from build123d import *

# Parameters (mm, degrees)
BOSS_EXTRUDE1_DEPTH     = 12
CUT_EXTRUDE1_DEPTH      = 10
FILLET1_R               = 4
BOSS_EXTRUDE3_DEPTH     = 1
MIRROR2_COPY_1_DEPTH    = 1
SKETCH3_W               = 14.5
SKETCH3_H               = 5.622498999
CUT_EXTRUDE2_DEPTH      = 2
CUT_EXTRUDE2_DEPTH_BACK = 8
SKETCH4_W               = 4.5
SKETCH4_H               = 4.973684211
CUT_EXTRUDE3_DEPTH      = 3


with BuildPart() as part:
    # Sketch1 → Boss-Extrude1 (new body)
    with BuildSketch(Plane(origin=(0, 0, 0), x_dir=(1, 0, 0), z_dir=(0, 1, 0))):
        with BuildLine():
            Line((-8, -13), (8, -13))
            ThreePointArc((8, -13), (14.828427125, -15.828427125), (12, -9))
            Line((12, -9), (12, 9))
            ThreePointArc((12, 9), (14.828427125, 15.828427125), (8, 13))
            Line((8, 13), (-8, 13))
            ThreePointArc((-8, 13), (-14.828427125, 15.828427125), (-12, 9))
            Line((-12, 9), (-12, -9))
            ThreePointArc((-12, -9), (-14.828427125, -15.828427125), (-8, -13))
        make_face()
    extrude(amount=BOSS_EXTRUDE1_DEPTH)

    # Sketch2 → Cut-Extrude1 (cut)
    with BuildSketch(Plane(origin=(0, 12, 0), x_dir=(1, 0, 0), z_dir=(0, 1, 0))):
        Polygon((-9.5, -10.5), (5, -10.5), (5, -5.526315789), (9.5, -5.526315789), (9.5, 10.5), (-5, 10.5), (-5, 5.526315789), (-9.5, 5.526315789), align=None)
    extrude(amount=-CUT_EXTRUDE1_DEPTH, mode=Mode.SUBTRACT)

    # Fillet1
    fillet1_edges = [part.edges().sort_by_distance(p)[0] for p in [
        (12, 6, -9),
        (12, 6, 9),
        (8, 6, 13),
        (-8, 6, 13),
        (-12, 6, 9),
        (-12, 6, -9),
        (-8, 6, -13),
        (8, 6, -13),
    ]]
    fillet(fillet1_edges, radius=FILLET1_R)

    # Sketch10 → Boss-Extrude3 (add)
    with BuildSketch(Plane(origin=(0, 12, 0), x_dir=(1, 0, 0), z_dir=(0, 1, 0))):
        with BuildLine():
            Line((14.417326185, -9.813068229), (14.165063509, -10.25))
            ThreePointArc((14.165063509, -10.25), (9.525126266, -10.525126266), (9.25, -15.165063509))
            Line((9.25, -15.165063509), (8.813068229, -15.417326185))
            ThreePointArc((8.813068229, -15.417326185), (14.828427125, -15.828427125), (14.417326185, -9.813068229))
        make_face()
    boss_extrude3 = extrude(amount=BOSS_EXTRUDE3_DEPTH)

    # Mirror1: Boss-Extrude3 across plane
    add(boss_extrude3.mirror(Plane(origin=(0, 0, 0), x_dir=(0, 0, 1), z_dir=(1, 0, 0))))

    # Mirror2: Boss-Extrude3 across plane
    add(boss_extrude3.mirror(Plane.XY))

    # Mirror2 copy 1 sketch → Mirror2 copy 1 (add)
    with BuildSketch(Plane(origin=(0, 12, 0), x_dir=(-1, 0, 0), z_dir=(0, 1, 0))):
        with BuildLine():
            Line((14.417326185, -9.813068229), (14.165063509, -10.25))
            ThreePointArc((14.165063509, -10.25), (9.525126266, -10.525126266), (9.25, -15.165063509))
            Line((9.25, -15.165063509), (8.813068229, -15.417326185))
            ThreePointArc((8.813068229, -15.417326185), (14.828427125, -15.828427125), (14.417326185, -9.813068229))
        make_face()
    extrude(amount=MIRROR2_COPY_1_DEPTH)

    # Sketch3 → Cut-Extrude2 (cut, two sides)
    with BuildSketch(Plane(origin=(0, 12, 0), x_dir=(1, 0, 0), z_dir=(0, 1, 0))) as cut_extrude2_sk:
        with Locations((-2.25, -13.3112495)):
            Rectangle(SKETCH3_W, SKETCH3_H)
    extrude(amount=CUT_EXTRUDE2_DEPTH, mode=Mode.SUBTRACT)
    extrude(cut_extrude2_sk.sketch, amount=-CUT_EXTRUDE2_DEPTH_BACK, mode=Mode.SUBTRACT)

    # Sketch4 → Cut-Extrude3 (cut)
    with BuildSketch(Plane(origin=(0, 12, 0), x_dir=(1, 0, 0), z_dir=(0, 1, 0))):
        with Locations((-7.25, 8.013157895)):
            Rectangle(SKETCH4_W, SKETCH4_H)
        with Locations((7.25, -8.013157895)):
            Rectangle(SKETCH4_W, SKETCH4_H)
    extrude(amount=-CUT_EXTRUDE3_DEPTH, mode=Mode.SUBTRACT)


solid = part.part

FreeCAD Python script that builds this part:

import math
import FreeCAD as App
import Part
import Sketcher

V = App.Vector
Q = App.Units.Quantity


def edges_at(feature, points):
    """Names of the edges that pass closest to the given points."""
    edges = feature.Shape.Edges
    near = lambda p: min(range(len(edges)), key=lambda i: edges[i].distToShape(Part.Vertex(*p))[0])
    return sorted({f"Edge{near(p) + 1}" for p in points})

doc = App.newDocument("Part")
body = doc.addObject("PartDesign::Body", "Body")

# Sketch on XZ plane
sketch1 = doc.addObject("Sketcher::SketchObject", "Sketch")
body.addObject(sketch1)
sketch1.AttachmentSupport = (doc.XZ_Plane, [""])
sketch1.MapMode = "FlatFace"
sketch1.addGeometry(Part.LineSegment(V(-8, 13, 0), V(8, 13, 0)), False)
sketch1.addGeometry(Part.ArcOfCircle(Part.Circle(V(12, 13, 0), V(0, 0, 1), 4), math.radians(-90), math.radians(180)), False)
sketch1.addGeometry(Part.LineSegment(V(12, 9, 0), V(12, -9, 0)), False)
sketch1.addGeometry(Part.ArcOfCircle(Part.Circle(V(12, -13, 0), V(0, 0, 1), 4), math.radians(180), math.radians(450)), False)
sketch1.addGeometry(Part.LineSegment(V(8, -13, 0), V(-8, -13, 0)), False)
sketch1.addGeometry(Part.ArcOfCircle(Part.Circle(V(-12, -13, 0), V(0, 0, 1), 4), math.radians(90), math.radians(360)), False)
sketch1.addGeometry(Part.LineSegment(V(-12, -9, 0), V(-12, 9, 0)), False)
sketch1.addGeometry(Part.ArcOfCircle(Part.Circle(V(-12, 13, 0), V(0, 0, 1), 4), math.radians(0), math.radians(270)), False)
sketch1.addConstraint(Sketcher.Constraint("Coincident", 0, 2, 1, 2))
sketch1.addConstraint(Sketcher.Constraint("Coincident", 1, 1, 2, 1))
sketch1.addConstraint(Sketcher.Constraint("Coincident", 2, 2, 3, 2))
sketch1.addConstraint(Sketcher.Constraint("Coincident", 3, 1, 4, 1))
sketch1.addConstraint(Sketcher.Constraint("Coincident", 4, 2, 5, 2))
sketch1.addConstraint(Sketcher.Constraint("Coincident", 5, 1, 6, 1))
sketch1.addConstraint(Sketcher.Constraint("Coincident", 6, 2, 7, 2))
sketch1.addConstraint(Sketcher.Constraint("Coincident", 7, 1, 0, 1))
sketch1.addConstraint(Sketcher.Constraint("Horizontal", 0))
sketch1.addConstraint(Sketcher.Constraint("Vertical", 2))
sketch1.addConstraint(Sketcher.Constraint("Horizontal", 4))
sketch1.addConstraint(Sketcher.Constraint("Vertical", 6))
sketch1.addConstraint(Sketcher.Constraint("Equal", 1, 3))
sketch1.addConstraint(Sketcher.Constraint("Equal", 3, 5))
sketch1.addConstraint(Sketcher.Constraint("Equal", 5, 7))
sketch1.addConstraint(Sketcher.Constraint("Symmetric", 1, 3, 5, 3, -1, 1))
sketch1.addConstraint(Sketcher.Constraint("Symmetric", 3, 3, 7, 3, -1, 1))
sketch1.addConstraint(Sketcher.Constraint("Symmetric", 3, 3, 5, 3, -2))
sketch1.addConstraint(Sketcher.Constraint("Horizontal", 7, 3, 0, 2))
sketch1.addConstraint(Sketcher.Constraint("Horizontal", 5, 3, 3, 1))
sketch1.addConstraint(Sketcher.Constraint("Vertical", 3, 3, 1, 1))
sketch1.addConstraint(Sketcher.Constraint("Vertical", 7, 3, 5, 1))
sketch1.addConstraint(Sketcher.Constraint("Radius", 1, 4.0))
sketch1.addConstraint(Sketcher.Constraint("DistanceX", 0, 1, 0, 2, 16.0))
sketch1.addConstraint(Sketcher.Constraint("DistanceY", 2, 2, 2, 1, 18.0))
pad1 = doc.addObject("PartDesign::Pad", "Pad")
body.addObject(pad1)
pad1.Profile = sketch1
pad1.Length = 12
pad1.Reversed = True

# Sketch on XZ plane
sketch2 = doc.addObject("Sketcher::SketchObject", "Sketch001")
body.addObject(sketch2)
sketch2.AttachmentSupport = (doc.XZ_Plane, [""])
sketch2.MapMode = "FlatFace"
sketch2.AttachmentOffset = App.Placement(V(0, 0, -12), App.Rotation())
sketch2.addGeometry(Part.LineSegment(V(-9.5, 10.5, 0), V(5, 10.5, 0)), False)
sketch2.addGeometry(Part.LineSegment(V(5, 10.5, 0), V(5, 5.5, 0)), False)
sketch2.addGeometry(Part.LineSegment(V(5, 5.5, 0), V(9.5, 5.5, 0)), False)
sketch2.addGeometry(Part.LineSegment(V(9.5, 5.5, 0), V(9.5, -10.5, 0)), False)
sketch2.addGeometry(Part.LineSegment(V(9.5, -10.5, 0), V(-5, -10.5, 0)), False)
sketch2.addGeometry(Part.LineSegment(V(-5, -10.5, 0), V(-5, -5.5, 0)), False)
sketch2.addGeometry(Part.LineSegment(V(-5, -5.5, 0), V(-9.5, -5.5, 0)), False)
sketch2.addGeometry(Part.LineSegment(V(-9.5, -5.5, 0), V(-9.5, 10.5, 0)), False)
sketch2.addConstraint(Sketcher.Constraint("Coincident", 0, 2, 1, 1))
sketch2.addConstraint(Sketcher.Constraint("Coincident", 1, 2, 2, 1))
sketch2.addConstraint(Sketcher.Constraint("Coincident", 2, 2, 3, 1))
sketch2.addConstraint(Sketcher.Constraint("Coincident", 3, 2, 4, 1))
sketch2.addConstraint(Sketcher.Constraint("Coincident", 4, 2, 5, 1))
sketch2.addConstraint(Sketcher.Constraint("Coincident", 5, 2, 6, 1))
sketch2.addConstraint(Sketcher.Constraint("Coincident", 6, 2, 7, 1))
sketch2.addConstraint(Sketcher.Constraint("Coincident", 7, 2, 0, 1))
sketch2.addConstraint(Sketcher.Constraint("Horizontal", 0))
sketch2.addConstraint(Sketcher.Constraint("Vertical", 1))
sketch2.addConstraint(Sketcher.Constraint("Horizontal", 2))
sketch2.addConstraint(Sketcher.Constraint("Vertical", 3))
sketch2.addConstraint(Sketcher.Constraint("Horizontal", 4))
sketch2.addConstraint(Sketcher.Constraint("Vertical", 5))
sketch2.addConstraint(Sketcher.Constraint("Horizontal", 6))
sketch2.addConstraint(Sketcher.Constraint("Vertical", 7))
sketch2.addConstraint(Sketcher.Constraint("Symmetric", 0, 2, 4, 2, -1, 1))
sketch2.addConstraint(Sketcher.Constraint("Symmetric", 2, 2, 6, 2, -1, 1))
sketch2.addConstraint(Sketcher.Constraint("DistanceX", 0, 1, 0, 2, 14.5))
sketch2.addConstraint(Sketcher.Constraint("DistanceX", 2, 1, 2, 2, 4.5))
sketch2.addConstraint(Sketcher.Constraint("DistanceY", 3, 2, 0, 2, 21.0))
sketch2.addConstraint(Sketcher.Constraint("DistanceY", 1, 2, 1, 1, 4.973684))
pocket1 = doc.addObject("PartDesign::Pocket", "Pocket")
body.addObject(pocket1)
pocket1.Profile = sketch2
pocket1.Length = 10
pocket1.Reversed = True
doc.recompute()

fillet = doc.addObject("PartDesign::Fillet", "Fillet")
body.addObject(fillet)
fillet.Base = (pocket1, edges_at(pocket1, [
    (12, 6, -9),
    (12, 6, 9),
    (8, 6, 13),
    (-8, 6, 13),
    (-12, 6, 9),
    (-12, 6, -9),
    (-8, 6, -13),
    (8, 6, -13),
]))
fillet.Radius = 4

# Sketch on XZ plane
sketch3 = doc.addObject("Sketcher::SketchObject", "Sketch002")
body.addObject(sketch3)
sketch3.AttachmentSupport = (doc.XZ_Plane, [""])
sketch3.MapMode = "FlatFace"
sketch3.AttachmentOffset = App.Placement(V(0, 0, -12), App.Rotation())
sketch3.addGeometry(Part.LineSegment(V(14.4, 9.8, 0), V(14.2, 10.2, 0)), False)
sketch3.addGeometry(Part.ArcOfCircle(Part.Circle(V(12, 13, 0), V(0, 0, 1), 3.5), math.radians(142), math.radians(308)), False)
sketch3.addGeometry(Part.LineSegment(V(9.2, 15.2, 0), V(8.8, 15.4, 0)), False)
sketch3.addGeometry(Part.ArcOfCircle(Part.Circle(V(12, 13, 0), V(0, 0, 1), 4), math.radians(-53), math.radians(143)), False)
sketch3.addConstraint(Sketcher.Constraint("Coincident", 0, 2, 1, 2))
sketch3.addConstraint(Sketcher.Constraint("Coincident", 1, 1, 2, 1))
sketch3.addConstraint(Sketcher.Constraint("Coincident", 2, 2, 3, 2))
sketch3.addConstraint(Sketcher.Constraint("Coincident", 3, 1, 0, 1))
sketch3.addConstraint(Sketcher.Constraint("Coincident", 3, 3, 1, 3))
sketch3.addConstraint(Sketcher.Constraint("Equal", 0, 2))
sketch3.addConstraint(Sketcher.Constraint("Radius", 3, 4.0))
sketch3.addConstraint(Sketcher.Constraint("Radius", 1, 3.5))
sketch3.addConstraint(Sketcher.Constraint("Angle", 0, Q("120 deg")))
sketch3.addConstraint(Sketcher.Constraint("Angle", 2, Q("150 deg")))
sketch3.addConstraint(Sketcher.Constraint("DistanceX", -1, 1, 1, 3, 12.0))
sketch3.addConstraint(Sketcher.Constraint("DistanceY", -1, 1, 1, 3, 13.0))
sketch3.addConstraint(Sketcher.Constraint("DistanceY", -1, 1, 0, 2, 10.25))
pad2 = doc.addObject("PartDesign::Pad", "Pad001")
body.addObject(pad2)
pad2.Profile = sketch3
pad2.Length = 1
pad2.Reversed = True
doc.recompute()

mirrored = doc.addObject("PartDesign::Mirrored", "Mirrored")
body.addObject(mirrored)
mirrored.Originals = [pad2]
mirrored.MirrorPlane = (doc.YZ_Plane, [""])
body.Tip = mirrored
doc.recompute()

mirrored2 = doc.addObject("PartDesign::Mirrored", "Mirrored001")
body.addObject(mirrored2)
mirrored2.Originals = [pad2]
mirrored2.MirrorPlane = (doc.XY_Plane, [""])
body.Tip = mirrored2

# Sketch on XZ plane
sketch4 = doc.addObject("Sketcher::SketchObject", "Sketch003")
body.addObject(sketch4)
sketch4.AttachmentSupport = (doc.XZ_Plane, [""])
sketch4.MapMode = "FlatFace"
sketch4.AttachmentOffset = App.Placement(V(0, 0, -12), App.Rotation())
sketch4.addGeometry(Part.LineSegment(V(-14.4, -9.8, 0), V(-14.2, -10.2, 0)), False)
sketch4.addGeometry(Part.ArcOfCircle(Part.Circle(V(-12, -13, 0), V(0, 0, 1), 3.5), math.radians(-38), math.radians(128)), False)
sketch4.addGeometry(Part.LineSegment(V(-9.2, -15.2, 0), V(-8.8, -15.4, 0)), False)
sketch4.addGeometry(Part.ArcOfCircle(Part.Circle(V(-12, -13, 0), V(0, 0, 1), 4), math.radians(127), math.radians(323)), False)
sketch4.addConstraint(Sketcher.Constraint("Coincident", 0, 2, 1, 2))
sketch4.addConstraint(Sketcher.Constraint("Coincident", 1, 1, 2, 1))
sketch4.addConstraint(Sketcher.Constraint("Coincident", 2, 2, 3, 2))
sketch4.addConstraint(Sketcher.Constraint("Coincident", 3, 1, 0, 1))
sketch4.addConstraint(Sketcher.Constraint("Coincident", 3, 3, 1, 3))
sketch4.addConstraint(Sketcher.Constraint("Equal", 0, 2))
sketch4.addConstraint(Sketcher.Constraint("Radius", 3, 4.0))
sketch4.addConstraint(Sketcher.Constraint("Radius", 1, 3.5))
sketch4.addConstraint(Sketcher.Constraint("Angle", 0, Q("-60 deg")))
sketch4.addConstraint(Sketcher.Constraint("Angle", 2, Q("-30 deg")))
sketch4.addConstraint(Sketcher.Constraint("DistanceX", 1, 3, -1, 1, 12.0))
sketch4.addConstraint(Sketcher.Constraint("DistanceY", 1, 3, -1, 1, 13.0))
sketch4.addConstraint(Sketcher.Constraint("DistanceY", 0, 2, -1, 1, 10.25))
pad3 = doc.addObject("PartDesign::Pad", "Pad002")
body.addObject(pad3)
pad3.Profile = sketch4
pad3.Length = 1
pad3.Reversed = True

# Sketch on XZ plane
sketch5 = doc.addObject("Sketcher::SketchObject", "Sketch004")
body.addObject(sketch5)
sketch5.AttachmentSupport = (doc.XZ_Plane, [""])
sketch5.MapMode = "FlatFace"
sketch5.AttachmentOffset = App.Placement(V(0, 0, -12), App.Rotation())
sketch5.addGeometry(Part.LineSegment(V(-10, 11, 0), V(-10, 16, 0)), False)
sketch5.addGeometry(Part.LineSegment(V(-10, 16, 0), V(5, 16, 0)), False)
sketch5.addGeometry(Part.LineSegment(V(5, 16, 0), V(5, 11, 0)), False)
sketch5.addGeometry(Part.LineSegment(V(5, 11, 0), V(-10, 11, 0)), False)
sketch5.addConstraint(Sketcher.Constraint("Coincident", 0, 2, 1, 1))
sketch5.addConstraint(Sketcher.Constraint("Coincident", 1, 2, 2, 1))
sketch5.addConstraint(Sketcher.Constraint("Coincident", 2, 2, 3, 1))
sketch5.addConstraint(Sketcher.Constraint("Coincident", 3, 2, 0, 1))
sketch5.addConstraint(Sketcher.Constraint("Vertical", 0))
sketch5.addConstraint(Sketcher.Constraint("Horizontal", 1))
sketch5.addConstraint(Sketcher.Constraint("Vertical", 2))
sketch5.addConstraint(Sketcher.Constraint("Horizontal", 3))
sketch5.addConstraint(Sketcher.Constraint("DistanceX", 1, 1, 1, 2, 14.5))
sketch5.addConstraint(Sketcher.Constraint("DistanceX", -1, 1, 1, 2, 5.0))
sketch5.addConstraint(Sketcher.Constraint("DistanceY", -1, 1, 2, 2, 10.5))
sketch5.addConstraint(Sketcher.Constraint("DistanceY", 0, 1, 0, 2, 5.622499))
pocket2 = doc.addObject("PartDesign::Pocket", "Pocket001")
body.addObject(pocket2)
pocket2.Profile = sketch5
pocket2.Type = "TwoLengths"
pocket2.Length = 2
pocket2.Length2 = 8

# Sketch on XZ plane
sketch6 = doc.addObject("Sketcher::SketchObject", "Sketch005")
body.addObject(sketch6)
sketch6.AttachmentSupport = (doc.XZ_Plane, [""])
sketch6.MapMode = "FlatFace"
sketch6.AttachmentOffset = App.Placement(V(0, 0, -12), App.Rotation())
sketch6.addGeometry(Part.LineSegment(V(-9.5, -10.5, 0), V(-9.5, -5.5, 0)), False)
sketch6.addGeometry(Part.LineSegment(V(-9.5, -5.5, 0), V(-5, -5.5, 0)), False)
sketch6.addGeometry(Part.LineSegment(V(-5, -5.5, 0), V(-5, -10.5, 0)), False)
sketch6.addGeometry(Part.LineSegment(V(-5, -10.5, 0), V(-9.5, -10.5, 0)), False)
sketch6.addGeometry(Part.LineSegment(V(5, 5.5, 0), V(5, 10.5, 0)), False)
sketch6.addGeometry(Part.LineSegment(V(5, 10.5, 0), V(9.5, 10.5, 0)), False)
sketch6.addGeometry(Part.LineSegment(V(9.5, 10.5, 0), V(9.5, 5.5, 0)), False)
sketch6.addGeometry(Part.LineSegment(V(9.5, 5.5, 0), V(5, 5.5, 0)), False)
sketch6.addConstraint(Sketcher.Constraint("Coincident", 0, 2, 1, 1))
sketch6.addConstraint(Sketcher.Constraint("Coincident", 1, 2, 2, 1))
sketch6.addConstraint(Sketcher.Constraint("Coincident", 2, 2, 3, 1))
sketch6.addConstraint(Sketcher.Constraint("Coincident", 3, 2, 0, 1))
sketch6.addConstraint(Sketcher.Constraint("Coincident", 4, 2, 5, 1))
sketch6.addConstraint(Sketcher.Constraint("Coincident", 5, 2, 6, 1))
sketch6.addConstraint(Sketcher.Constraint("Coincident", 6, 2, 7, 1))
sketch6.addConstraint(Sketcher.Constraint("Coincident", 7, 2, 4, 1))
sketch6.addConstraint(Sketcher.Constraint("Vertical", 0))
sketch6.addConstraint(Sketcher.Constraint("Horizontal", 1))
sketch6.addConstraint(Sketcher.Constraint("Vertical", 2))
sketch6.addConstraint(Sketcher.Constraint("Horizontal", 3))
sketch6.addConstraint(Sketcher.Constraint("Vertical", 4))
sketch6.addConstraint(Sketcher.Constraint("Horizontal", 5))
sketch6.addConstraint(Sketcher.Constraint("Vertical", 6))
sketch6.addConstraint(Sketcher.Constraint("Horizontal", 7))
sketch6.addConstraint(Sketcher.Constraint("Symmetric", 2, 2, 4, 2, -1, 1))
sketch6.addConstraint(Sketcher.Constraint("Symmetric", 0, 2, 6, 2, -1, 1))
sketch6.addConstraint(Sketcher.Constraint("DistanceX", 1, 1, 1, 2, 4.5))
sketch6.addConstraint(Sketcher.Constraint("DistanceX", 1, 2, -1, 1, 5.0))
sketch6.addConstraint(Sketcher.Constraint("DistanceY", 2, 2, 4, 2, 21.0))
sketch6.addConstraint(Sketcher.Constraint("DistanceY", 0, 1, 0, 2, 4.973684))
pocket3 = doc.addObject("PartDesign::Pocket", "Pocket002")
body.addObject(pocket3)
pocket3.Profile = sketch6
pocket3.Length = 3
pocket3.Reversed = True

doc.recompute()
